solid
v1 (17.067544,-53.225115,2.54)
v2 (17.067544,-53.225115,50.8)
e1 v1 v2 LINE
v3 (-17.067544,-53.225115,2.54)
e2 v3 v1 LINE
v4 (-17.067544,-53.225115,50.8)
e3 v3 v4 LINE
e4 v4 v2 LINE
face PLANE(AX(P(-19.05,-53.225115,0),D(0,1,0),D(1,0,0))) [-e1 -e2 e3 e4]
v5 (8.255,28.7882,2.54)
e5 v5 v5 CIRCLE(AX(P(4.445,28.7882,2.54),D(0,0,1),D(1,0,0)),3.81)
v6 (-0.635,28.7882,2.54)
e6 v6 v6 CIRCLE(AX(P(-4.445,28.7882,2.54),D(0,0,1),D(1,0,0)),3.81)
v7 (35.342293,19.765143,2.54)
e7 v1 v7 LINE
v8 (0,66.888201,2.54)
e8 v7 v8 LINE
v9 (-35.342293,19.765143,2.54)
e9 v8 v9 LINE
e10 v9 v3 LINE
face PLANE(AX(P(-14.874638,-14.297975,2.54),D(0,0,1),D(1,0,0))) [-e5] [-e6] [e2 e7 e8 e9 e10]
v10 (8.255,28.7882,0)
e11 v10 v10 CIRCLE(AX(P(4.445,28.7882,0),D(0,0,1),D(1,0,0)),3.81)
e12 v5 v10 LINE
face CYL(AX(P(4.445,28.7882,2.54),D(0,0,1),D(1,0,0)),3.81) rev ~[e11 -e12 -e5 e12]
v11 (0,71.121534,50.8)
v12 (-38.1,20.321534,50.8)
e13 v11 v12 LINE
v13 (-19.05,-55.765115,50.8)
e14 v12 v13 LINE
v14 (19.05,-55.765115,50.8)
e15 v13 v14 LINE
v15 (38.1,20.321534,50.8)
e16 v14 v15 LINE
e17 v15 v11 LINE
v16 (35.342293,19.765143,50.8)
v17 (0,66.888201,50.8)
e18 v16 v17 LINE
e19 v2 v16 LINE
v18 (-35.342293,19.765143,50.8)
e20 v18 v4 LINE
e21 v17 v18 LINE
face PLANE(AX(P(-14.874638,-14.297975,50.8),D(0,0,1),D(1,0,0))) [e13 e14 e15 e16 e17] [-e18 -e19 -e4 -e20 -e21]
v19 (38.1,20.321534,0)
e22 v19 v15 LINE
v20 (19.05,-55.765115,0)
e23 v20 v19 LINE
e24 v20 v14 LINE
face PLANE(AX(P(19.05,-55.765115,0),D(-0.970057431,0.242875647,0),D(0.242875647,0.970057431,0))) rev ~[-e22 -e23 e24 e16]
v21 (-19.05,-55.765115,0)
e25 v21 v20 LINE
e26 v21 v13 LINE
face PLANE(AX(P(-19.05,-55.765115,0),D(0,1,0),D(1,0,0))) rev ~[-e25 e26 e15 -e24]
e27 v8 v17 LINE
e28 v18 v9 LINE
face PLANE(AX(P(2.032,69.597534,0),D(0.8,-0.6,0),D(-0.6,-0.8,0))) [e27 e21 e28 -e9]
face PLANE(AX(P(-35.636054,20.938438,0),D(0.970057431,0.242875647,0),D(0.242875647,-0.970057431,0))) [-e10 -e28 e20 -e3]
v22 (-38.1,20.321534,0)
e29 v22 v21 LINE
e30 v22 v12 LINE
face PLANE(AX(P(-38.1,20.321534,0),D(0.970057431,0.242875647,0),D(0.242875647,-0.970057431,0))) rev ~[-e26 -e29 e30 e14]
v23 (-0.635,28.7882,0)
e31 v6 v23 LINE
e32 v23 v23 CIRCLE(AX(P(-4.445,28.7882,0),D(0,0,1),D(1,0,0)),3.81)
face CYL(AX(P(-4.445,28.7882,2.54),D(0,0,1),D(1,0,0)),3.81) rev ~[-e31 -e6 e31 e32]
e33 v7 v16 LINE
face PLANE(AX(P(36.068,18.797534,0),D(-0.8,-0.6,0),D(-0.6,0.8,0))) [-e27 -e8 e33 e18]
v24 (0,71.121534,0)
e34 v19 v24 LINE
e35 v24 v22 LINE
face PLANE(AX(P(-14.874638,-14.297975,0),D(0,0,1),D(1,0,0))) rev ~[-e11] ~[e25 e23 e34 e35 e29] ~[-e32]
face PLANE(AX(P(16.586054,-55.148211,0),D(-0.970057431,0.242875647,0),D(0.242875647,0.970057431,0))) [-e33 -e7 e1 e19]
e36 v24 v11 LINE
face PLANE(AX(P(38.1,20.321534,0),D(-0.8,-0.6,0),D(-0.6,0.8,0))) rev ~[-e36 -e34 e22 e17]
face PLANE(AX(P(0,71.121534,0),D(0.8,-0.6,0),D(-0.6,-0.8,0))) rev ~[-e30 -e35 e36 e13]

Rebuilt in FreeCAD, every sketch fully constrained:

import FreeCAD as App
import Part
import Sketcher
from FreeCAD import Vector
Q = App.Units.Quantity


def faces_at(feature, points):
    """Names of the faces that lie closest to the given points."""
    faces = feature.Shape.Faces
    near = lambda p: min(range(len(faces)), key=lambda i: faces[i].distToShape(Part.Vertex(*p))[0])
    return sorted({f"Face{near(p) + 1}" for p in points})


def add_polygon(sketch, points):
    """Adds a closed chain of lines whose ends are joined by coincident constraints."""
    first, n = sketch.GeometryCount, len(points)
    for a, b in zip(points, points[1:] + points[:1]):
        sketch.addGeometry(Part.LineSegment(App.Vector(*a, 0), App.Vector(*b, 0)), False)
    for i in range(n):
        sketch.addConstraint(Sketcher.Constraint("Coincident", first + i, 2, first + (i + 1) % n, 1))

doc = App.newDocument("Part")
body = doc.addObject("PartDesign::Body", "Body")

# Sketch on XY plane
sketch1 = doc.addObject("Sketcher::SketchObject", "Sketch")
body.addObject(sketch1)
sketch1.AttachmentSupport = (doc.XY_Plane, [""])
sketch1.MapMode = "FlatFace"
add_polygon(sketch1, [(-38, 20), (-19, -56), (19, -56), (38, 20), (0, 71)])  # lines 0-4
sketch1.addConstraint(Sketcher.Constraint("Horizontal", 1))
sketch1.addConstraint(Sketcher.Constraint("Symmetric", 2, 2, 4, 2, -2))
sketch1.addConstraint(Sketcher.Constraint("PointOnObject", 3, 2, -2))
sketch1.addConstraint(Sketcher.Constraint("Equal", 0, 2))
sketch1.addConstraint(Sketcher.Constraint("DistanceX", 1, 1, 1, 2, Q("1.5 in")))
sketch1.addConstraint(Sketcher.Constraint("DistanceY", 2, 2, 3, 2, Q("2 in")))
sketch1.addConstraint(Sketcher.Constraint("DistanceX", 4, 2, 2, 2, Q("3 in")))
sketch1.addConstraint(Sketcher.Constraint("Distance", 0, Q("3.088 in")))
sketch1.addConstraint(Sketcher.Constraint("DistanceY", 0, 2, -1, 1, 55.765115))
pad1 = doc.addObject("PartDesign::Pad", "Pad")
body.addObject(pad1)
pad1.Profile = sketch1
pad1.Length = Q("2 in")
doc.recompute()

thickness = doc.addObject("PartDesign::Thickness", "Thickness")
body.addObject(thickness)
thickness.Base = (pad1, faces_at(pad1, [(0, 7.678, 50.8)]))
thickness.Value = Q("0.1 in")
thickness.Reversed = True
thickness.Join = "Arc"

# Sketch on XY plane
sketch2 = doc.addObject("Sketcher::SketchObject", "Sketch001")
body.addObject(sketch2)
sketch2.AttachmentSupport = (doc.XY_Plane, [""])
sketch2.MapMode = "FlatFace"
sketch2.AttachmentOffset = App.Placement(Vector(0, 0, 0.1 * 25.4), App.Rotation())
sketch2.addGeometry(Part.Circle(Vector(4.4, 28.8, 0), Vector(0, 0, 1), 3.8), False)
sketch2.addGeometry(Part.Circle(Vector(-4.4, 28.8, 0), Vector(0, 0, 1), 3.8), False)
sketch2.addConstraint(Sketcher.Constraint("Equal", 0, 1))
sketch2.addConstraint(Sketcher.Constraint("Symmetric", 0, 3, 1, 3, -2))
sketch2.addConstraint(Sketcher.Constraint("Diameter", 0, Q("0.3 in")))
sketch2.addConstraint(Sketcher.Constraint("DistanceX", 1, 3, 0, 3, Q("0.35 in")))
sketch2.addConstraint(Sketcher.Constraint("DistanceY", -1, 1, 0, 3, 28.7882))
pocket1 = doc.addObject("PartDesign::Pocket", "Pocket")
body.addObject(pocket1)
pocket1.Profile = sketch2
pocket1.Length = Q("1 in")

doc.recompute()
